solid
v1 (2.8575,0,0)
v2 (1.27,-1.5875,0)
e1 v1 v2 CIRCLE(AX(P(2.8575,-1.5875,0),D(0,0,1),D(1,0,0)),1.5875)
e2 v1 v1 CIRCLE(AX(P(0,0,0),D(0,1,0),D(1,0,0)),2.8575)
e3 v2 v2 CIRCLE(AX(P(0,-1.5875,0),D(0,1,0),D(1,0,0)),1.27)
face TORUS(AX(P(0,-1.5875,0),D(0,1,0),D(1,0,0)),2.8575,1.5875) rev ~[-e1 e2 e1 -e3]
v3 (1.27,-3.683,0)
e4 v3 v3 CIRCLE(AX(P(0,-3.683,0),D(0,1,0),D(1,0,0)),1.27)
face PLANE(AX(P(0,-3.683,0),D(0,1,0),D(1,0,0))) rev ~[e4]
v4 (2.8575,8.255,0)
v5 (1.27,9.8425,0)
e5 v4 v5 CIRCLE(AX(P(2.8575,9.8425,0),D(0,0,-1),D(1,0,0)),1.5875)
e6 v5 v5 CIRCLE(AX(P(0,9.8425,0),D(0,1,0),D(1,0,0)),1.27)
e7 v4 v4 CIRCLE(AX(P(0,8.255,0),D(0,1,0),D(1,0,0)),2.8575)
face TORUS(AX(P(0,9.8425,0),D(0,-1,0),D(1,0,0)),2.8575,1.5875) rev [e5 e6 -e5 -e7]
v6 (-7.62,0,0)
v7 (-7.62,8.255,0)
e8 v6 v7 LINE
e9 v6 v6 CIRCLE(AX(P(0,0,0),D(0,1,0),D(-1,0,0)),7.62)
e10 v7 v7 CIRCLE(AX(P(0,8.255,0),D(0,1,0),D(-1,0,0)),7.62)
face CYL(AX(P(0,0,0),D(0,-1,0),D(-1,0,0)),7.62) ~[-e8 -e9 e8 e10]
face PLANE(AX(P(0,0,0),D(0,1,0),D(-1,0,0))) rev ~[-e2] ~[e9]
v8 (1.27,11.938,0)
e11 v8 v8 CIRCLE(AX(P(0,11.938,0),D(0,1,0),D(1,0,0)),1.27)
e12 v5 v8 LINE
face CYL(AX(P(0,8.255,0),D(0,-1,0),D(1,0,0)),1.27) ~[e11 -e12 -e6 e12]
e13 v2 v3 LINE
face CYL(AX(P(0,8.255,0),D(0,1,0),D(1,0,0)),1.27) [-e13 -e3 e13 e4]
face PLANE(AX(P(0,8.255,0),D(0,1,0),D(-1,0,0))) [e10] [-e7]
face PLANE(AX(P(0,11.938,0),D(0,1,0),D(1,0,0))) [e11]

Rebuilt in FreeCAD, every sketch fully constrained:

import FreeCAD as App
import Part
import Sketcher
Q = App.Units.Quantity


def edges_at(feature, points):
    """Names of the edges that pass closest to the given points."""
    edges = feature.Shape.Edges
    near = lambda p: min(range(len(edges)), key=lambda i: edges[i].distToShape(Part.Vertex(*p))[0])
    return sorted({f"Edge{near(p) + 1}" for p in points})

doc = App.newDocument("Part")
body = doc.addObject("PartDesign::Body", "Body")

sketch1 = doc.addObject("Sketcher::SketchObject", "Sketch")
body.addObject(sketch1)
sketch1.AttachmentSupport = (doc.XZ_Plane, [""])
sketch1.MapMode = "FlatFace"
sketch1.addGeometry(Part.Circle(App.Vector(0, 0, 0), App.Vector(0, 0, 1), 8), False)
sketch1.addConstraint([
    Sketcher.Constraint("Coincident", 0, 3, -1, 1),
    Sketcher.Constraint("Diameter", 0, Q("0.6 in")),
])
pad1 = doc.addObject("PartDesign::Pad", "Pad")
body.addObject(pad1)
pad1.Profile = sketch1
pad1.Length = Q("0.325 in")
pad1.Reversed = True

sketch2 = doc.addObject("Sketcher::SketchObject", "Sketch001")
body.addObject(sketch2)
sketch2.AttachmentSupport = (doc.XZ_Plane, [""])
sketch2.MapMode = "FlatFace"
sketch2.AttachmentOffset = App.Placement(App.Vector(0, 0, -0.325 * 25.4), App.Rotation())
sketch2.addGeometry(Part.Circle(App.Vector(0, 0, 0), App.Vector(0, 0, 1), 1.3), False)
sketch2.addConstraint([
    Sketcher.Constraint("Coincident", 0, 3, -1, 1),
    Sketcher.Constraint("Diameter", 0, Q("0.1 in")),
])
pad2 = doc.addObject("PartDesign::Pad", "Pad001")
body.addObject(pad2)
pad2.Profile = sketch2
pad2.Type = "TwoLengths"
pad2.Length = Q("0.145 in")
pad2.Length2 = Q("0.47 in")
pad2.Reversed = True
doc.recompute()

fillet = doc.addObject("PartDesign::Fillet", "Fillet")
body.addObject(fillet)
fillet.Base = (pad2, edges_at(pad2, [(-1.27, 0, 0), (-1.27, 8.255, 0)]))
fillet.Radius = Q("0.0625 in")

doc.recompute()
